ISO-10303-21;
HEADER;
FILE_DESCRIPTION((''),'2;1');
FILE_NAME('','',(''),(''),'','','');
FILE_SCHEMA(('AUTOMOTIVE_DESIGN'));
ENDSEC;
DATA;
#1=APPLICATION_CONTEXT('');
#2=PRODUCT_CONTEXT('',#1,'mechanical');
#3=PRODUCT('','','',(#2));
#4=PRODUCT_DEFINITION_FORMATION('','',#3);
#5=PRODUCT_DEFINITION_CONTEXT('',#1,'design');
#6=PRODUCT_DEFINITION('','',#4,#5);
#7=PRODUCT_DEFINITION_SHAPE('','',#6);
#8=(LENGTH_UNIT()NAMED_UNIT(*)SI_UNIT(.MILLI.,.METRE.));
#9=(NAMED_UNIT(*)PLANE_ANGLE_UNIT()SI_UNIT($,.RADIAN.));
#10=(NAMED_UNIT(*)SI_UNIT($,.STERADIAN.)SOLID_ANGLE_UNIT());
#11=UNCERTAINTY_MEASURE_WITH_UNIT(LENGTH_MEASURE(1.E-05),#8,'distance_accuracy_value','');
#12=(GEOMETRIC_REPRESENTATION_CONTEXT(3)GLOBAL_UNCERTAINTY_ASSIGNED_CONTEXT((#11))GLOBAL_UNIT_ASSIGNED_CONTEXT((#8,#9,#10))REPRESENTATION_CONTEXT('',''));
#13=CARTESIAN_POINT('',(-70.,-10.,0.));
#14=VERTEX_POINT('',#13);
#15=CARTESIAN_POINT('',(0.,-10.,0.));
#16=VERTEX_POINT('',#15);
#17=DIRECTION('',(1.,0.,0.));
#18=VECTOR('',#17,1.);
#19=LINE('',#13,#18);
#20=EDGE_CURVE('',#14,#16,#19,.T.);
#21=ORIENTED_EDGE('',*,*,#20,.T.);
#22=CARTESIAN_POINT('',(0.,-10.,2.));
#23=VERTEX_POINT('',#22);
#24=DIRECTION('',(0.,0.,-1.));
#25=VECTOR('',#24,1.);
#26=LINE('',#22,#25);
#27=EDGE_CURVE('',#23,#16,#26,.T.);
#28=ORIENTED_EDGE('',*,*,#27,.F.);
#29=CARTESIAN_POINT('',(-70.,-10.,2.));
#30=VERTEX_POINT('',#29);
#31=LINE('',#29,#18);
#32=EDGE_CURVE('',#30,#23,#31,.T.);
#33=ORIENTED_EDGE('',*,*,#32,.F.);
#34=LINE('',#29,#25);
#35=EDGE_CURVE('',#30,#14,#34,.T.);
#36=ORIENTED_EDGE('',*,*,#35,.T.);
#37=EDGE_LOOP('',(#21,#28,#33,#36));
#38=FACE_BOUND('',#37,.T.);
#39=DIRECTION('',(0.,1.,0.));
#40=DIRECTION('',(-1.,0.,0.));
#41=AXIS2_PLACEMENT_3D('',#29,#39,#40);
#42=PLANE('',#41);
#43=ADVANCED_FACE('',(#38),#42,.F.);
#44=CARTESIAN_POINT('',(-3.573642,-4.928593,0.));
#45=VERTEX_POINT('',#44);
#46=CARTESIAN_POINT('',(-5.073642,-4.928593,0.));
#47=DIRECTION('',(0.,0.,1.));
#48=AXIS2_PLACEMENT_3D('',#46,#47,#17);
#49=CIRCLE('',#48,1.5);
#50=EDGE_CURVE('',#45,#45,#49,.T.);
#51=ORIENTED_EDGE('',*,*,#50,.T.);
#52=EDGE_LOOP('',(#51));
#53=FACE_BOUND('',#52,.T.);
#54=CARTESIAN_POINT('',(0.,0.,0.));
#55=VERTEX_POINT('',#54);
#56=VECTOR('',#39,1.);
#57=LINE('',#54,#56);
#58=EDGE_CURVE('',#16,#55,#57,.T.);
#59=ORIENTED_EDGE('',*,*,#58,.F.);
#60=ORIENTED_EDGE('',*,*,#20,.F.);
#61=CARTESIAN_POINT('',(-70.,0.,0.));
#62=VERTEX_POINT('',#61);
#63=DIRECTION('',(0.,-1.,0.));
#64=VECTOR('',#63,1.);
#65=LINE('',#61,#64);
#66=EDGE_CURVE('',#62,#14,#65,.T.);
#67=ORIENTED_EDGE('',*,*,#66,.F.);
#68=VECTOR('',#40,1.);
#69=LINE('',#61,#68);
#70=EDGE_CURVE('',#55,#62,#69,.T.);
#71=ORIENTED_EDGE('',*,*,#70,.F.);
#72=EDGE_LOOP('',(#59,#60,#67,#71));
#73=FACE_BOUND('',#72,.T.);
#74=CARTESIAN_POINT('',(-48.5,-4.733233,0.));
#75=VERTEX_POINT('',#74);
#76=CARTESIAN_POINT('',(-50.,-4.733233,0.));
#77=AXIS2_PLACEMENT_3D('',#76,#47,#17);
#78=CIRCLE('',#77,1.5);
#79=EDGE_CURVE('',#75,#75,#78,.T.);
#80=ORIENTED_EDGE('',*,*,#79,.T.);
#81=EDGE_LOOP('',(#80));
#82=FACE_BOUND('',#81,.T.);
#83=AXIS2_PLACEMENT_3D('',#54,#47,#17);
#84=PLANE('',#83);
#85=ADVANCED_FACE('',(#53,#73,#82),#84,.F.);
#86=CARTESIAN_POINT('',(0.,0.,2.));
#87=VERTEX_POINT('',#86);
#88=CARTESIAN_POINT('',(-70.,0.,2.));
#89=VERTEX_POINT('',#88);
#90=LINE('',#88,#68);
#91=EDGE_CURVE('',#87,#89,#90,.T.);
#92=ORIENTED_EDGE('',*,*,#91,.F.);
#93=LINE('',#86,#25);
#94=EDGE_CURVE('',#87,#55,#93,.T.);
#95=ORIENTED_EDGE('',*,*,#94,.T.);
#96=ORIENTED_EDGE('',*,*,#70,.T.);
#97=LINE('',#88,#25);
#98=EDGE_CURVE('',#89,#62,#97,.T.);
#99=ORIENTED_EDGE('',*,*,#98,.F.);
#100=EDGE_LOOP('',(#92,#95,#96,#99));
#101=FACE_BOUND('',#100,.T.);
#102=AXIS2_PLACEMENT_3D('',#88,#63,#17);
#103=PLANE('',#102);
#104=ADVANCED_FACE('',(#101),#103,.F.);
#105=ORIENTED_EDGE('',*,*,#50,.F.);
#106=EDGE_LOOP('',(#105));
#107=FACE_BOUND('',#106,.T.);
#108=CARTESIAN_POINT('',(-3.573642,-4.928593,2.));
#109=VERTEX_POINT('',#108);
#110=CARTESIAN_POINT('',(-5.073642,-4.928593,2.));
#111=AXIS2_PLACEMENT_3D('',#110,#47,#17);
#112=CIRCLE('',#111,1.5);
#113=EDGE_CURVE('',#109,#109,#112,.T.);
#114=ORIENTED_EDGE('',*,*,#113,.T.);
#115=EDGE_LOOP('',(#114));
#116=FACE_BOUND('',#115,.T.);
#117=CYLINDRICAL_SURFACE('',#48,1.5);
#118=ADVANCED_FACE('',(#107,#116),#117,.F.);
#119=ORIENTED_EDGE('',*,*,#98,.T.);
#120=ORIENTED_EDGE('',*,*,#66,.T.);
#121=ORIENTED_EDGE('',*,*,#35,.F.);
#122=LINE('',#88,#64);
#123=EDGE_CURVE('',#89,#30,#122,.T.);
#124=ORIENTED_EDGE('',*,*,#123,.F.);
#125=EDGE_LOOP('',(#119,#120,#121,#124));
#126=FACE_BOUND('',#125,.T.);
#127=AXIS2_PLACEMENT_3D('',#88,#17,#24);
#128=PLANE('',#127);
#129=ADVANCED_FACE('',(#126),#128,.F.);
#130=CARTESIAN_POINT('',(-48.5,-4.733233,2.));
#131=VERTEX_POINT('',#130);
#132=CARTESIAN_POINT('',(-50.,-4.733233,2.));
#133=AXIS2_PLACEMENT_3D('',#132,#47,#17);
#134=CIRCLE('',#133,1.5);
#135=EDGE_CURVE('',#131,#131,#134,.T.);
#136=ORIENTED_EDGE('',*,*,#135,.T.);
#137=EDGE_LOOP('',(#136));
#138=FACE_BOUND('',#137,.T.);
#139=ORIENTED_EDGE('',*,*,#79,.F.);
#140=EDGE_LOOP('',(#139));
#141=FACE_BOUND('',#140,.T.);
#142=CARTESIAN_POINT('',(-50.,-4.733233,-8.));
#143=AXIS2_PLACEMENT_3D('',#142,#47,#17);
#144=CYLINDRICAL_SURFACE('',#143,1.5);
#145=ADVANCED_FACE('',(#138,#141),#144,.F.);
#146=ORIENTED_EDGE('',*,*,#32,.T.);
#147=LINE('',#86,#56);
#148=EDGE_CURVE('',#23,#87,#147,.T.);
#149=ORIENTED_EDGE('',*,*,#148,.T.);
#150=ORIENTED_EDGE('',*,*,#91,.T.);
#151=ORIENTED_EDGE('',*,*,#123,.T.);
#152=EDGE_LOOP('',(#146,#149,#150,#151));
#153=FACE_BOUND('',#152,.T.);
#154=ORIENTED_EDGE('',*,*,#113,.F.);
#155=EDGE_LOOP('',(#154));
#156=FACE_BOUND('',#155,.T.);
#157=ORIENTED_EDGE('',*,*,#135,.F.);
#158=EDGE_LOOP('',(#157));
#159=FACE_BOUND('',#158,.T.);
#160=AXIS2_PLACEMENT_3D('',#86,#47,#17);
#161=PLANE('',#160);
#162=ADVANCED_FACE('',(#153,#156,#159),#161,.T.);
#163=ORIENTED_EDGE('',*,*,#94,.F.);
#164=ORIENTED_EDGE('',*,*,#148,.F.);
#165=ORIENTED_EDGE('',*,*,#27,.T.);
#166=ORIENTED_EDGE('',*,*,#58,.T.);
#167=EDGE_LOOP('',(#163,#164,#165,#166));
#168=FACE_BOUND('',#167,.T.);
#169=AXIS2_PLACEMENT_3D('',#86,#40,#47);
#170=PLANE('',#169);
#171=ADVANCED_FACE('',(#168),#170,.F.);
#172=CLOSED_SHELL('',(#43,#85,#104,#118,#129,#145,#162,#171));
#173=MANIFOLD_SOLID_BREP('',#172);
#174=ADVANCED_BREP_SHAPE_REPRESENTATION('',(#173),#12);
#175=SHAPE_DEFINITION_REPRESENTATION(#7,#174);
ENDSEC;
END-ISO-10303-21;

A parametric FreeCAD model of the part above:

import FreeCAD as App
import Part
import Sketcher

V = App.Vector


def add_polygon(sketch, points):
    """Adds a closed chain of lines whose ends are joined by coincident constraints."""
    first, n = sketch.GeometryCount, len(points)
    for a, b in zip(points, points[1:] + points[:1]):
        sketch.addGeometry(Part.LineSegment(App.Vector(*a, 0), App.Vector(*b, 0)), False)
    for i in range(n):
        sketch.addConstraint(Sketcher.Constraint("Coincident", first + i, 2, first + (i + 1) % n, 1))

doc = App.newDocument("Part")
body = doc.addObject("PartDesign::Body", "Body")

sketch1 = body.newObject("Sketcher::SketchObject", "Sketch")
sketch1.AttachmentSupport = (doc.getObject("XY_Plane"), [""])
sketch1.MapMode = "FlatFace"
add_polygon(sketch1, [(-70, 0), (-70, -10), (0, -10), (0, 0)])
sketch1.addConstraint(Sketcher.Constraint("Vertical", 0))
sketch1.addConstraint(Sketcher.Constraint("Horizontal", 1))
sketch1.addConstraint(Sketcher.Constraint("Vertical", 2))
sketch1.addConstraint(Sketcher.Constraint("Horizontal", 3))
sketch1.addConstraint(Sketcher.Constraint("Coincident", 2, 2, -1, 1))
sketch1.addConstraint(Sketcher.Constraint("DistanceX", 1, 1, 1, 2, 70.0))
sketch1.addConstraint(Sketcher.Constraint("DistanceY", 0, 2, 0, 1, 10.0))
pad1 = body.newObject("PartDesign::Pad", "Pad")
pad1.Profile = sketch1
pad1.Length = 2

sketch2 = body.newObject("Sketcher::SketchObject", "Sketch001")
sketch2.AttachmentSupport = (doc.getObject("XY_Plane"), [""])
sketch2.MapMode = "FlatFace"
sketch2.AttachmentOffset = App.Placement(V(0, 0, 2), App.Rotation())
sketch2.addGeometry(Part.Circle(V(-5.1, -4.9, 0), V(0, 0, 1), 1.5), False)
sketch2.addConstraint(Sketcher.Constraint("Diameter", 0, 3.0))
sketch2.addConstraint(Sketcher.Constraint("DistanceX", 0, 3, -1, 1, 5.073642))
sketch2.addConstraint(Sketcher.Constraint("DistanceY", 0, 3, -1, 1, 4.928593))
pocket1 = body.newObject("PartDesign::Pocket", "Pocket")
pocket1.Profile = sketch2
pocket1.Length = 2

sketch3 = body.newObject("Sketcher::SketchObject", "Sketch002")
sketch3.AttachmentSupport = (doc.getObject("XY_Plane"), [""])
sketch3.MapMode = "FlatFace"
sketch3.AttachmentOffset = App.Placement(V(0, 0, 2), App.Rotation())
sketch3.addGeometry(Part.Circle(V(-50, -4.7, 0), V(0, 0, 1), 1.5), False)
sketch3.addConstraint(Sketcher.Constraint("Diameter", 0, 3.0))
sketch3.addConstraint(Sketcher.Constraint("DistanceX", 0, 3, -1, 1, 50.0))
sketch3.addConstraint(Sketcher.Constraint("DistanceY", 0, 3, -1, 1, 4.733233))
pocket2 = body.newObject("PartDesign::Pocket", "Pocket001")
pocket2.Profile = sketch3
pocket2.Length = 10

doc.recompute()
